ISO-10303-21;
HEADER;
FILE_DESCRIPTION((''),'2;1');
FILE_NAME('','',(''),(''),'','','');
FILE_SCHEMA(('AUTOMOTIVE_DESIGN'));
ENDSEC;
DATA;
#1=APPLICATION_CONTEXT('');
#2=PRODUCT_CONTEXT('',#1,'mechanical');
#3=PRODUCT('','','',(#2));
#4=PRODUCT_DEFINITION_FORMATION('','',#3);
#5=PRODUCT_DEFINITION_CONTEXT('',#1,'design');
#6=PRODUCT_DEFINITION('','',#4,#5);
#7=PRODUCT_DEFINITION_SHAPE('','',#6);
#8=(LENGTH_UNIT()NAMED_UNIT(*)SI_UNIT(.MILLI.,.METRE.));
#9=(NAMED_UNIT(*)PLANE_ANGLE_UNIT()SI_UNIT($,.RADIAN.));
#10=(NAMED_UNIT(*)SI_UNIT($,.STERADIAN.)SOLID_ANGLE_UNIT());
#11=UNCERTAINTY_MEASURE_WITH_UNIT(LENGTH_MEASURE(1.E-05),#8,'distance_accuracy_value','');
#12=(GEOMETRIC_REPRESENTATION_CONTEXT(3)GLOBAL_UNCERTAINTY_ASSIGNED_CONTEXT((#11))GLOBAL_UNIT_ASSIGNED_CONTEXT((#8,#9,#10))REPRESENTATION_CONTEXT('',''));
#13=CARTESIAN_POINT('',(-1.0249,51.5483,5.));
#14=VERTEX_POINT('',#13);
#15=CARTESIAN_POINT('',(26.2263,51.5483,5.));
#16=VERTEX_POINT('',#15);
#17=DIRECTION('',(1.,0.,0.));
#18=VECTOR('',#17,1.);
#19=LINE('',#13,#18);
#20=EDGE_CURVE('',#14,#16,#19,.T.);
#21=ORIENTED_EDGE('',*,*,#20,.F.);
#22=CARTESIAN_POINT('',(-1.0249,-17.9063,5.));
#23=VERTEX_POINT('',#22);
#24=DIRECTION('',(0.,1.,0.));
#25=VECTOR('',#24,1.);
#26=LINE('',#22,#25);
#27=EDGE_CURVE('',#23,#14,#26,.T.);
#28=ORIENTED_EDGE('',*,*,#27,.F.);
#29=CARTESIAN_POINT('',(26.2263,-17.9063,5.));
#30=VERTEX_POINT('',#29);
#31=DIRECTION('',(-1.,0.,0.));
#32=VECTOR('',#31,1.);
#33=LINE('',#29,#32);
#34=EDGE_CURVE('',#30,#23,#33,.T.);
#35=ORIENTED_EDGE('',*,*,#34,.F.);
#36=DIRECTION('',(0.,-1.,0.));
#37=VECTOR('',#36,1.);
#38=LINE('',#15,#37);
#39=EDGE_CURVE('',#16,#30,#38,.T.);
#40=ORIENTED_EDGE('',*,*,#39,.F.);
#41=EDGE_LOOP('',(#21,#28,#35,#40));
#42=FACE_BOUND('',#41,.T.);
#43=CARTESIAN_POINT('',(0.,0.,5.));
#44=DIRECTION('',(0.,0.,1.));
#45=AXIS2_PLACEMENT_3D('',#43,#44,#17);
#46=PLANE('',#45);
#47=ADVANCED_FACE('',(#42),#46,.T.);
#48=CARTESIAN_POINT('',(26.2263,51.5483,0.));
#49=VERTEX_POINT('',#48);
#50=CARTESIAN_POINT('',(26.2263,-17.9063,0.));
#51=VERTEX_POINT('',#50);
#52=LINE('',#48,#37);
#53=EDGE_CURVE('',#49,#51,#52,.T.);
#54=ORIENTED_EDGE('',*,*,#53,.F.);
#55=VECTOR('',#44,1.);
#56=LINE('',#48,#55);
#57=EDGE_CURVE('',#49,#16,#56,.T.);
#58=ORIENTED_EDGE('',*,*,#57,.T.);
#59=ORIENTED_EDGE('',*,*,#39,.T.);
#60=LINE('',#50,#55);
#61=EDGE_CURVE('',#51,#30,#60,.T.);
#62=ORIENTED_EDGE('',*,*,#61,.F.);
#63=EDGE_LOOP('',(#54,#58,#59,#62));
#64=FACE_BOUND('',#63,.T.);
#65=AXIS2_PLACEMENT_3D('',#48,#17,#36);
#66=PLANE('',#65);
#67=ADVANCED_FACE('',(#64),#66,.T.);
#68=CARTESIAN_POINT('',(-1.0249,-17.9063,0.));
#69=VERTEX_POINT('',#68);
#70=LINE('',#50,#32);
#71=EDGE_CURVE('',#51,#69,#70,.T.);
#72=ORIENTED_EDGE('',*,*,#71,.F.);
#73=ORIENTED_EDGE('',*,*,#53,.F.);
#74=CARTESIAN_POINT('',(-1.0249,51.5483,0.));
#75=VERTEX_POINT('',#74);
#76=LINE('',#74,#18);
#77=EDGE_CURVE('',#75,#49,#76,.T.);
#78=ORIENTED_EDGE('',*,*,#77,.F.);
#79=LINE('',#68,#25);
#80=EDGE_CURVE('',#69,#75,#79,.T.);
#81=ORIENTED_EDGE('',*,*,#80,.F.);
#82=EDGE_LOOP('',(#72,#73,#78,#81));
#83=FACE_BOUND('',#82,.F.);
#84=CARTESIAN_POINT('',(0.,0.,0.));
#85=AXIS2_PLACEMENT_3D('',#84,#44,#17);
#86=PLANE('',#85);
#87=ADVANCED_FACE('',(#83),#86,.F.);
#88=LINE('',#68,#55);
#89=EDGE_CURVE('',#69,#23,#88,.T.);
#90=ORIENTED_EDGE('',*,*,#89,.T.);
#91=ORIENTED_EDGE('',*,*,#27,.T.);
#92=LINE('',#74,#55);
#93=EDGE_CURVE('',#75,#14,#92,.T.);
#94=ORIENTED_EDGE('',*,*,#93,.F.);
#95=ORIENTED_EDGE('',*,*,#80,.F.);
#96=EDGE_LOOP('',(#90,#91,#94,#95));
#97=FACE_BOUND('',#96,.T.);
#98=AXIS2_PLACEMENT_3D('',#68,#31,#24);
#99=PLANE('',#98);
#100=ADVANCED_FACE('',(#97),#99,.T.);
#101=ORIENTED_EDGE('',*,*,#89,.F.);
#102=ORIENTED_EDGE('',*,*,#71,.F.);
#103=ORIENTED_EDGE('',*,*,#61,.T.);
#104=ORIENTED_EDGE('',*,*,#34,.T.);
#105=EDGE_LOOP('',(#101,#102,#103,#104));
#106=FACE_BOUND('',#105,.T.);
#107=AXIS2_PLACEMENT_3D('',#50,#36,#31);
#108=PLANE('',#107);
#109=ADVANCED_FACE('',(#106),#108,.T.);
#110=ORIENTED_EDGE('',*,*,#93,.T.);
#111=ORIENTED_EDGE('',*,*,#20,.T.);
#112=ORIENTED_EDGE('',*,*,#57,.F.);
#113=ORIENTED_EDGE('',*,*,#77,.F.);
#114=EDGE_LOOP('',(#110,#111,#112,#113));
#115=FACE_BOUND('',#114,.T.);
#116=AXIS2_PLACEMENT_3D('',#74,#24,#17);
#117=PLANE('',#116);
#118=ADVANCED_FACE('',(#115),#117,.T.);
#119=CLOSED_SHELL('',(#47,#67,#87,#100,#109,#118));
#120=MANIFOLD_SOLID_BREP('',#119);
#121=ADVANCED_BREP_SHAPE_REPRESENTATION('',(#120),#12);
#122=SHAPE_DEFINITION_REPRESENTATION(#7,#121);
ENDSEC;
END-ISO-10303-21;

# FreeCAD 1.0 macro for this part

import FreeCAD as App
import Part
import Sketcher
from FreeCAD import Vector


def add_polygon(sketch, points):
    """Adds a closed chain of lines whose ends are joined by coincident constraints."""
    first, n = sketch.GeometryCount, len(points)
    for a, b in zip(points, points[1:] + points[:1]):
        sketch.addGeometry(Part.LineSegment(App.Vector(*a, 0), App.Vector(*b, 0)), False)
    for i in range(n):
        sketch.addConstraint(Sketcher.Constraint("Coincident", first + i, 2, first + (i + 1) % n, 1))

doc = App.newDocument("Part")
body = doc.addObject("PartDesign::Body", "Body")

# Sketch on XY plane
sketch1 = body.newObject("Sketcher::SketchObject", "Sketch")
sketch1.AttachmentSupport = (doc.getObject("XY_Plane"), [""])
sketch1.MapMode = "FlatFace"
add_polygon(sketch1, [(-1.0249, -17.9063), (26.2263, -17.9063), (26.2263, 51.5483), (-1.0249, 51.5483)])  # lines 0-3
sketch1.addConstraint(Sketcher.Constraint("Horizontal", 0))
sketch1.addConstraint(Sketcher.Constraint("Vertical", 1))
sketch1.addConstraint(Sketcher.Constraint("Horizontal", 2))
sketch1.addConstraint(Sketcher.Constraint("Vertical", 3))
sketch1.addConstraint(Sketcher.Constraint("DistanceX", 0, 1, 0, 2, 27.2512))
sketch1.addConstraint(Sketcher.Constraint("DistanceY", 1, 1, 1, 2, 69.4546))
sketch1.addConstraint(Sketcher.Constraint("DistanceX", 2, 2, -1, 1, 1.025))
sketch1.addConstraint(Sketcher.Constraint("DistanceY", 0, 2, -1, 1, 17.9063))
pad1 = body.newObject("PartDesign::Pad", "Pad")
pad1.Profile = sketch1
pad1.Length = 5

doc.recompute()
